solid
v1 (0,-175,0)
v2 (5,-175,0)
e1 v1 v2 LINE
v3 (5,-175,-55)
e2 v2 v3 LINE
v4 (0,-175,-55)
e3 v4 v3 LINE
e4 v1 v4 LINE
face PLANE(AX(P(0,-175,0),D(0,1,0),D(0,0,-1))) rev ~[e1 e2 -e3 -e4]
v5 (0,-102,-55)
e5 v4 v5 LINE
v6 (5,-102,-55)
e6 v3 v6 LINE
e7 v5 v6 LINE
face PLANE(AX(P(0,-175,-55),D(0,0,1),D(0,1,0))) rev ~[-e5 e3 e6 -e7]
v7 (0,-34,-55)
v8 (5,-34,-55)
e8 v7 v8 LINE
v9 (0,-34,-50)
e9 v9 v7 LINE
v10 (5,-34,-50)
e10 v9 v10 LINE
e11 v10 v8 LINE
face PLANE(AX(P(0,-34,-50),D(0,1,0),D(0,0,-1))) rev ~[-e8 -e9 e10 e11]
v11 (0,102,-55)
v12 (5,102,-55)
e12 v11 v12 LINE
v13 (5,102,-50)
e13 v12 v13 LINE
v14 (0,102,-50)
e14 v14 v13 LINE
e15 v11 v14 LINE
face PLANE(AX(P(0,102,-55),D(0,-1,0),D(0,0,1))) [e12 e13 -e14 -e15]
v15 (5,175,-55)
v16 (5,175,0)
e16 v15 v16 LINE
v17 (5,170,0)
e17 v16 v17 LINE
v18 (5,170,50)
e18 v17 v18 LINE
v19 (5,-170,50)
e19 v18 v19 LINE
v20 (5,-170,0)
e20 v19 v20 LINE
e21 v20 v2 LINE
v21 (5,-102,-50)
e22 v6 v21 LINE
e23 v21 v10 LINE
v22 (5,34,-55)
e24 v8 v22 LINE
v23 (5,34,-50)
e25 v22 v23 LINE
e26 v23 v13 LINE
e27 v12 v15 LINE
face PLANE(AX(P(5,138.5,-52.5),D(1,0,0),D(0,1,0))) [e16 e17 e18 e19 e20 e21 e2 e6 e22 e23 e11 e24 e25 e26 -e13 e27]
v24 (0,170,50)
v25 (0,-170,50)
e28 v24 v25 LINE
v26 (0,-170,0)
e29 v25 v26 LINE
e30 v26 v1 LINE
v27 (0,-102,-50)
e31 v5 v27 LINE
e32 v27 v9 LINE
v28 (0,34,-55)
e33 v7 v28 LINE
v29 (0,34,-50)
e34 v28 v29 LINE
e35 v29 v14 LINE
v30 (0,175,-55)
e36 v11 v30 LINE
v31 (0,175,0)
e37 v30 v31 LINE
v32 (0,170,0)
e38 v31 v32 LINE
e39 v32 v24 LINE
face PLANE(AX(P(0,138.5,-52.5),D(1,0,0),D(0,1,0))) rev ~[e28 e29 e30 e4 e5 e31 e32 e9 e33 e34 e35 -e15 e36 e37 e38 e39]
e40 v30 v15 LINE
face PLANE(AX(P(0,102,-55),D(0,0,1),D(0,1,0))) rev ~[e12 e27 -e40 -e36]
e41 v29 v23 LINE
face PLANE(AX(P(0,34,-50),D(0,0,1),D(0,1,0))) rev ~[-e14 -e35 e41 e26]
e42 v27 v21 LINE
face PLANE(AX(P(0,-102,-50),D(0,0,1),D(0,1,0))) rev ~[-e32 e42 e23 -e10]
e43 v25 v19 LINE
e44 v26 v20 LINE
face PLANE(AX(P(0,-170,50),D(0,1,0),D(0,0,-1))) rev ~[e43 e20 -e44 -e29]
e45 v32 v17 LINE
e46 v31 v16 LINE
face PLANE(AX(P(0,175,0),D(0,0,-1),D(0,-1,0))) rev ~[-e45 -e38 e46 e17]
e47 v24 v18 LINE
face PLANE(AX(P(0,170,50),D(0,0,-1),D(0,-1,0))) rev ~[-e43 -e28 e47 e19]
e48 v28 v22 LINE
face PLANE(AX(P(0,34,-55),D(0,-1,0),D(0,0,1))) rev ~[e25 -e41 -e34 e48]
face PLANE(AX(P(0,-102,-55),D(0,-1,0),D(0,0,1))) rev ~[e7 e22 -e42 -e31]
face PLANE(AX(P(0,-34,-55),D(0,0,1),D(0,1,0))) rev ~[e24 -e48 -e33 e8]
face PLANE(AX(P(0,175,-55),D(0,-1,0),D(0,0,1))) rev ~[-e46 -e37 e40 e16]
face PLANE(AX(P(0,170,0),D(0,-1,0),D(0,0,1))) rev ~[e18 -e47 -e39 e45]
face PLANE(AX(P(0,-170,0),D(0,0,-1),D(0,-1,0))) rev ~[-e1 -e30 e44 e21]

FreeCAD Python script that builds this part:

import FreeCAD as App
import Part
import Sketcher

V = App.Vector

doc = App.newDocument("Part")
body = doc.addObject("PartDesign::Body", "Body")

# Sketch on YZ plane
sketch1 = body.newObject("Sketcher::SketchObject", "Sketch")
sketch1.AttachmentSupport = (doc.getObject("YZ_Plane"), [""])
sketch1.MapMode = "FlatFace"
sketch1.addGeometry([
    Part.LineSegment(V(102, -50, 0), V(102, -55, 0)),  # 0
    Part.LineSegment(V(102, -55, 0), V(175, -55, 0)),  # 1
    Part.LineSegment(V(175, -55, 0), V(175, 0, 0)),  # 2
    Part.LineSegment(V(175, 0, 0), V(170, 0, 0)),  # 3
    Part.LineSegment(V(170, 0, 0), V(170, 50, 0)),  # 4
    Part.LineSegment(V(170, 50, 0), V(-170, 50, 0)),  # 5
    Part.LineSegment(V(-170, 50, 0), V(-170, 0, 0)),  # 6
    Part.LineSegment(V(-170, 0, 0), V(-175, 0, 0)),  # 7
    Part.LineSegment(V(-175, 0, 0), V(-175, -55, 0)),  # 8
    Part.LineSegment(V(-175, -55, 0), V(-102, -55, 0)),  # 9
    Part.LineSegment(V(-102, -55, 0), V(-102, -50, 0)),  # 10
    Part.LineSegment(V(-102, -50, 0), V(-34, -50, 0)),  # 11
    Part.LineSegment(V(-34, -50, 0), V(-34, -55, 0)),  # 12
    Part.LineSegment(V(-34, -55, 0), V(34, -55, 0)),  # 13
    Part.LineSegment(V(34, -55, 0), V(34, -50, 0)),  # 14
    Part.LineSegment(V(34, -50, 0), V(102, -50, 0)),  # 15
], False)
sketch1.addConstraint([
    Sketcher.Constraint("Coincident", 0, 2, 1, 1),
    Sketcher.Constraint("Coincident", 1, 2, 2, 1),
    Sketcher.Constraint("Coincident", 2, 2, 3, 1),
    Sketcher.Constraint("Coincident", 3, 2, 4, 1),
    Sketcher.Constraint("Coincident", 4, 2, 5, 1),
    Sketcher.Constraint("Coincident", 5, 2, 6, 1),
    Sketcher.Constraint("Coincident", 6, 2, 7, 1),
    Sketcher.Constraint("Coincident", 7, 2, 8, 1),
    Sketcher.Constraint("Coincident", 8, 2, 9, 1),
    Sketcher.Constraint("Coincident", 9, 2, 10, 1),
    Sketcher.Constraint("Coincident", 10, 2, 11, 1),
    Sketcher.Constraint("Coincident", 11, 2, 12, 1),
    Sketcher.Constraint("Coincident", 12, 2, 13, 1),
    Sketcher.Constraint("Coincident", 13, 2, 14, 1),
    Sketcher.Constraint("Coincident", 14, 2, 15, 1),
    Sketcher.Constraint("Coincident", 15, 2, 0, 1),
    Sketcher.Constraint("Vertical", 0),
    Sketcher.Constraint("Horizontal", 1),
    Sketcher.Constraint("Vertical", 2),
    Sketcher.Constraint("Horizontal", 3),
    Sketcher.Constraint("Vertical", 4),
    Sketcher.Constraint("Horizontal", 5),
    Sketcher.Constraint("Vertical", 6),
    Sketcher.Constraint("Horizontal", 7),
    Sketcher.Constraint("Vertical", 8),
    Sketcher.Constraint("Horizontal", 9),
    Sketcher.Constraint("Vertical", 10),
    Sketcher.Constraint("Horizontal", 11),
    Sketcher.Constraint("Vertical", 12),
    Sketcher.Constraint("Horizontal", 13),
    Sketcher.Constraint("Vertical", 14),
    Sketcher.Constraint("Horizontal", 15),
    Sketcher.Constraint("Symmetric", 3, 2, 6, 2, -1, 1),
    Sketcher.Constraint("Symmetric", 2, 2, 7, 2, -2),
    Sketcher.Constraint("Symmetric", 0, 2, 9, 2, -2),
    Sketcher.Constraint("Symmetric", 11, 2, 14, 2, -2),
    Sketcher.Constraint("Horizontal", 9, 2, 12, 2),
    Sketcher.Constraint("Equal", 11, 13),
    Sketcher.Constraint("Equal", 7, 0),
    Sketcher.Constraint("DistanceX", 1, 1, 1, 2, 73.0),
    Sketcher.Constraint("DistanceX", 3, 2, 3, 1, 5.0),
    Sketcher.Constraint("DistanceX", 5, 2, 5, 1, 340.0),
    Sketcher.Constraint("DistanceY", 2, 1, 2, 2, 55.0),
    Sketcher.Constraint("DistanceY", 4, 1, 4, 2, 50.0),
])
pad1 = body.newObject("PartDesign::Pad", "Pad")
pad1.Profile = sketch1
pad1.Length = 5

doc.recompute()
